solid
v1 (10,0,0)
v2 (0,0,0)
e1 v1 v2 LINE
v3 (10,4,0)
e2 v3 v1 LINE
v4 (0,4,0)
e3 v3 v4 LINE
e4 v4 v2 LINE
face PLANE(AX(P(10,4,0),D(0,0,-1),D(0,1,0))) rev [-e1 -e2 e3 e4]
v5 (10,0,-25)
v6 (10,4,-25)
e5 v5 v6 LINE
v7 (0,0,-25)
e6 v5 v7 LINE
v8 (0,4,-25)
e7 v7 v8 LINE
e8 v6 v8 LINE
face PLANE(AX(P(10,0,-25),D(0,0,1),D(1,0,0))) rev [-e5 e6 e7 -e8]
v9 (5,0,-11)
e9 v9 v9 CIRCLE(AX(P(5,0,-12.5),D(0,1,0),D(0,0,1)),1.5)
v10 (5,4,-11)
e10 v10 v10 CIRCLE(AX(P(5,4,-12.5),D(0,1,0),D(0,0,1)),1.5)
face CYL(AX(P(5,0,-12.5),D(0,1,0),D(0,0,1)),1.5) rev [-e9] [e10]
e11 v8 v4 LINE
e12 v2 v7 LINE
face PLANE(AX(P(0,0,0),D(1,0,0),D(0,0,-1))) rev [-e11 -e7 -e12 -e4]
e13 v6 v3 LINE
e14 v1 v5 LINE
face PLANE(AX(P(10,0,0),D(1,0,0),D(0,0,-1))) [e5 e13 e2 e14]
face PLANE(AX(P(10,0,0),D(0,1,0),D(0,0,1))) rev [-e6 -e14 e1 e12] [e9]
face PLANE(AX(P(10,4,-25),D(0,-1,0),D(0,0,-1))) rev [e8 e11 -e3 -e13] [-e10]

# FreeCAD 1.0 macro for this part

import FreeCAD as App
import Part
import Sketcher
from FreeCAD import Vector
Q = App.Units.Quantity


def add_polygon(sketch, points):
    """Adds a closed chain of lines whose ends are joined by coincident constraints."""
    first, n = sketch.GeometryCount, len(points)
    for a, b in zip(points, points[1:] + points[:1]):
        sketch.addGeometry(Part.LineSegment(App.Vector(*a, 0), App.Vector(*b, 0)), False)
    for i in range(n):
        sketch.addConstraint(Sketcher.Constraint("Coincident", first + i, 2, first + (i + 1) % n, 1))

doc = App.newDocument("Part")
params = doc.addObject("Spreadsheet::Sheet", "Params")
for row, (alias, value) in enumerate([
    ("sketch1_width", "4 mm"),
    ("sketch1_height", "25 mm"),
    ("pad1_length", "10 mm"),
    ("sketch2_diameter", "3 mm"),
], start=1):
    params.set(f"A{row}", alias)
    params.set(f"B{row}", "=" + value)
    params.setAlias(f"B{row}", alias)

body = doc.addObject("PartDesign::Body", "Body")

# Sketch on YZ plane
sketch1 = body.newObject("Sketcher::SketchObject", "Sketch")
sketch1.AttachmentSupport = (doc.getObject("YZ_Plane"), [""])
sketch1.MapMode = "FlatFace"
add_polygon(sketch1, [(4, 0), (0, 0), (0, -25), (4, -25)])  # lines 0-3
sketch1.addConstraint([
    Sketcher.Constraint("Horizontal", 0),
    Sketcher.Constraint("Vertical", 1),
    Sketcher.Constraint("Horizontal", 2),
    Sketcher.Constraint("Vertical", 3),
    Sketcher.Constraint("Coincident", 0, 2, -1, 1),
    Sketcher.Constraint("DistanceX", 0, 2, 0, 1, Q("4 mm")),
    Sketcher.Constraint("DistanceY", 1, 2, 1, 1, Q("25 mm")),
])
sketch1.setExpression("Constraints[9]", "Params.sketch1_width")
sketch1.setExpression("Constraints[10]", "Params.sketch1_height")
pad1 = body.newObject("PartDesign::Pad", "Pad")
pad1.Profile = sketch1
pad1.setExpression("Length", "Params.pad1_length")

# Sketch on XZ plane
sketch2 = body.newObject("Sketcher::SketchObject", "Sketch001")
sketch2.AttachmentSupport = (doc.getObject("XZ_Plane"), [""])
sketch2.MapMode = "FlatFace"
sketch2.AttachmentOffset = App.Placement(Vector(0, 0, -4), App.Rotation())
sketch2.addGeometry(Part.Circle(Vector(5, -12.5, 0), Vector(0, 0, 1), 1.5), False)
sketch2.addConstraint([
    Sketcher.Constraint("Diameter", 0, Q("3 mm")),
    Sketcher.Constraint("DistanceX", -1, 1, 0, 3, Q("5 mm")),
    Sketcher.Constraint("DistanceY", 0, 3, -1, 1, Q("12.5 mm")),
])
sketch2.setExpression("Constraints[0]", "Params.sketch2_diameter")
pocket1 = body.newObject("PartDesign::Pocket", "Pocket")
pocket1.Profile = sketch2
pocket1.Type = "ThroughAll"
pocket1.Reversed = True

doc.recompute()
